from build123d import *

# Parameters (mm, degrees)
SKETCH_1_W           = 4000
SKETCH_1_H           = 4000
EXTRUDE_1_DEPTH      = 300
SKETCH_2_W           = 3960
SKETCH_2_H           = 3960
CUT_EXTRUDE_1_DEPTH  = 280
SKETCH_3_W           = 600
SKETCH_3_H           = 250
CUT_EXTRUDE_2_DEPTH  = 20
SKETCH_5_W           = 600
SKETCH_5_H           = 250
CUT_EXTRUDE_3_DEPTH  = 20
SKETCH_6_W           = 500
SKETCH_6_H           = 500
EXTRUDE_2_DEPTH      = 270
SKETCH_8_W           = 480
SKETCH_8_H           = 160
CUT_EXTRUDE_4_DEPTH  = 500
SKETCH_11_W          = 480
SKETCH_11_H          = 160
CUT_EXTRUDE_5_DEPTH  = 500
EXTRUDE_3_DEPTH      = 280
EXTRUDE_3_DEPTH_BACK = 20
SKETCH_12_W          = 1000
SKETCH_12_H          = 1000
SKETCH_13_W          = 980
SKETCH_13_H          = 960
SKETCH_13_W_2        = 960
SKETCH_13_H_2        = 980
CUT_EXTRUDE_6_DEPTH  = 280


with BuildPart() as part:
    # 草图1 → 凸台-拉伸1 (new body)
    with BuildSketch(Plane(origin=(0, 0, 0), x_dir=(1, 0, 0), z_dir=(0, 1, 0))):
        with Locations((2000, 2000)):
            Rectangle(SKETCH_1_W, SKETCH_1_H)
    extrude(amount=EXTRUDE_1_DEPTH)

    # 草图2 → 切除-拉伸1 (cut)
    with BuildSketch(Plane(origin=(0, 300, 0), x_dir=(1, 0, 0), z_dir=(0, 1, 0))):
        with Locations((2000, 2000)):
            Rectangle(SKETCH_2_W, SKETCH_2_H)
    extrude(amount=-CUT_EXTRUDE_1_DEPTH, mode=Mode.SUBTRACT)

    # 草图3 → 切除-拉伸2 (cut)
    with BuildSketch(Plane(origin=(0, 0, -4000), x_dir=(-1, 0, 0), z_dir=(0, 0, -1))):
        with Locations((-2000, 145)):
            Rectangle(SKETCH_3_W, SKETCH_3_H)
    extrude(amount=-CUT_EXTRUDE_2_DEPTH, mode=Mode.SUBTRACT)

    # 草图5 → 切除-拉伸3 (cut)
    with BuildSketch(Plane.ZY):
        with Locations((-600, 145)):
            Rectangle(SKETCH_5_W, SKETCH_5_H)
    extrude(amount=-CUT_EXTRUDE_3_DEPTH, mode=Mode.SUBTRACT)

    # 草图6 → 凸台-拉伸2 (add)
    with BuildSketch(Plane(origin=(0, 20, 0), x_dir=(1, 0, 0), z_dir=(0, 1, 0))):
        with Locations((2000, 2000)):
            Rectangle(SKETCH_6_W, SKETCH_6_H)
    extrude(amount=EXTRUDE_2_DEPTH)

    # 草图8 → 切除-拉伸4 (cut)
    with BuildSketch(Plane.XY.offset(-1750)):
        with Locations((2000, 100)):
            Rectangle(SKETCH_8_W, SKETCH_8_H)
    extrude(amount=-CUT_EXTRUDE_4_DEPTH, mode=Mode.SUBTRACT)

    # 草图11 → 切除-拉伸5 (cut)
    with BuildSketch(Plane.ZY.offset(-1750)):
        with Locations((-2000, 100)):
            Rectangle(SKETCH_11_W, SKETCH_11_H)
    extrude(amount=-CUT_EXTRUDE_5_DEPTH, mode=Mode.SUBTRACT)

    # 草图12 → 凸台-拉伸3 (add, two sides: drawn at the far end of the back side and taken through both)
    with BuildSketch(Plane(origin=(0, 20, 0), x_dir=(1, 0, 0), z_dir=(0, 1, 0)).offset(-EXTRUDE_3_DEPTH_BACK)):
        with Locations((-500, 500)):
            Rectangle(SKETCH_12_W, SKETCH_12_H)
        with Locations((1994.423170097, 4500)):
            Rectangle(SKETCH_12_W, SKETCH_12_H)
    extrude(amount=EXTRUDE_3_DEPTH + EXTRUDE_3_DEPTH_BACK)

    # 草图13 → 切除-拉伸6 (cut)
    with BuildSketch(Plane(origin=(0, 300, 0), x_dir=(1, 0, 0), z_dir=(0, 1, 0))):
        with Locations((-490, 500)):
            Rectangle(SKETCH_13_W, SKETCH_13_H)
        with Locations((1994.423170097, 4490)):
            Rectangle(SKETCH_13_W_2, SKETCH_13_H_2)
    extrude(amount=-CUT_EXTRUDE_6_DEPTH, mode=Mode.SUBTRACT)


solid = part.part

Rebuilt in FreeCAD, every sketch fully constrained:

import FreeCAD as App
import Part
import Sketcher
from FreeCAD import Vector


def add_polygon(sketch, points):
    """Adds a closed chain of lines whose ends are joined by coincident constraints."""
    first, n = sketch.GeometryCount, len(points)
    for a, b in zip(points, points[1:] + points[:1]):
        sketch.addGeometry(Part.LineSegment(App.Vector(*a, 0), App.Vector(*b, 0)), False)
    for i in range(n):
        sketch.addConstraint(Sketcher.Constraint("Coincident", first + i, 2, first + (i + 1) % n, 1))

doc = App.newDocument("Part")
body = doc.addObject("PartDesign::Body", "Body")

# Sketch on XZ plane
sketch1 = body.newObject("Sketcher::SketchObject", "Sketch")
sketch1.AttachmentSupport = (doc.getObject("XZ_Plane"), [""])
sketch1.MapMode = "FlatFace"
add_polygon(sketch1, [(0, -4000), (0, 0), (4000, 0), (4000, -4000)])  # lines 0-3
sketch1.addConstraint(Sketcher.Constraint("Vertical", 0))
sketch1.addConstraint(Sketcher.Constraint("Horizontal", 1))
sketch1.addConstraint(Sketcher.Constraint("Vertical", 2))
sketch1.addConstraint(Sketcher.Constraint("Horizontal", 3))
sketch1.addConstraint(Sketcher.Constraint("Coincident", 0, 2, -1, 1))
sketch1.addConstraint(Sketcher.Constraint("Equal", 3, 0))
sketch1.addConstraint(Sketcher.Constraint("DistanceX", 1, 1, 1, 2, 4000.0))
pad1 = body.newObject("PartDesign::Pad", "Pad")
pad1.Profile = sketch1
pad1.Length = 300
pad1.Reversed = True

# Sketch on XZ plane
sketch2 = body.newObject("Sketcher::SketchObject", "Sketch001")
sketch2.AttachmentSupport = (doc.getObject("XZ_Plane"), [""])
sketch2.MapMode = "FlatFace"
sketch2.AttachmentOffset = App.Placement(Vector(0, 0, -300), App.Rotation())
add_polygon(sketch2, [(20, -3980), (20, -20), (3980, -20), (3980, -3980)])  # lines 0-3
sketch2.addConstraint(Sketcher.Constraint("Vertical", 0))
sketch2.addConstraint(Sketcher.Constraint("Horizontal", 1))
sketch2.addConstraint(Sketcher.Constraint("Vertical", 2))
sketch2.addConstraint(Sketcher.Constraint("Horizontal", 3))
sketch2.addConstraint(Sketcher.Constraint("Equal", 3, 0))
sketch2.addConstraint(Sketcher.Constraint("DistanceX", 1, 1, 1, 2, 3960.0))
sketch2.addConstraint(Sketcher.Constraint("DistanceX", -1, 1, 0, 2, 20.0))
sketch2.addConstraint(Sketcher.Constraint("DistanceY", 0, 2, -1, 1, 20.0))
pocket1 = body.newObject("PartDesign::Pocket", "Pocket")
pocket1.Profile = sketch2
pocket1.Length = 280
pocket1.Reversed = True

# Sketch on XY plane
sketch3 = body.newObject("Sketcher::SketchObject", "Sketch002")
sketch3.AttachmentSupport = (doc.getObject("XY_Plane"), [""])
sketch3.MapMode = "FlatFace"
sketch3.AttachmentOffset = App.Placement(Vector(0, 0, -4000), App.Rotation())
add_polygon(sketch3, [(2300, 270), (2300, 20), (1700, 20), (1700, 270)])  # lines 0-3
sketch3.addConstraint(Sketcher.Constraint("Vertical", 0))
sketch3.addConstraint(Sketcher.Constraint("Horizontal", 1))
sketch3.addConstraint(Sketcher.Constraint("Vertical", 2))
sketch3.addConstraint(Sketcher.Constraint("Horizontal", 3))
sketch3.addConstraint(Sketcher.Constraint("DistanceX", 1, 2, 1, 1, 600.0))
sketch3.addConstraint(Sketcher.Constraint("DistanceY", 0, 2, 0, 1, 250.0))
sketch3.addConstraint(Sketcher.Constraint("DistanceX", -1, 1, 0, 2, 2300.0))
sketch3.addConstraint(Sketcher.Constraint("DistanceY", -1, 1, 0, 2, 20.0))
pocket2 = body.newObject("PartDesign::Pocket", "Pocket001")
pocket2.Profile = sketch3
pocket2.Length = 20
pocket2.Reversed = True

# Sketch on YZ plane
sketch4 = body.newObject("Sketcher::SketchObject", "Sketch003")
sketch4.AttachmentSupport = (doc.getObject("YZ_Plane"), [""])
sketch4.MapMode = "FlatFace"
add_polygon(sketch4, [(270, -900), (20, -900), (20, -300), (270, -300)])  # lines 0-3
sketch4.addConstraint(Sketcher.Constraint("Horizontal", 0))
sketch4.addConstraint(Sketcher.Constraint("Vertical", 1))
sketch4.addConstraint(Sketcher.Constraint("Horizontal", 2))
sketch4.addConstraint(Sketcher.Constraint("Vertical", 3))
sketch4.addConstraint(Sketcher.Constraint("DistanceX", 0, 2, 0, 1, 250.0))
sketch4.addConstraint(Sketcher.Constraint("DistanceY", 1, 1, 1, 2, 600.0))
sketch4.addConstraint(Sketcher.Constraint("DistanceX", -1, 1, 0, 2, 20.0))
sketch4.addConstraint(Sketcher.Constraint("DistanceY", 0, 2, -1, 1, 900.0))
pocket3 = body.newObject("PartDesign::Pocket", "Pocket002")
pocket3.Profile = sketch4
pocket3.Length = 20
pocket3.Reversed = True

# Sketch on XZ plane
sketch5 = body.newObject("Sketcher::SketchObject", "Sketch004")
sketch5.AttachmentSupport = (doc.getObject("XZ_Plane"), [""])
sketch5.MapMode = "FlatFace"
sketch5.AttachmentOffset = App.Placement(Vector(0, 0, -20), App.Rotation())
add_polygon(sketch5, [(1750, -2250), (1750, -1750), (2250, -1750), (2250, -2250)])  # lines 0-3
sketch5.addConstraint(Sketcher.Constraint("Vertical", 0))
sketch5.addConstraint(Sketcher.Constraint("Horizontal", 1))
sketch5.addConstraint(Sketcher.Constraint("Vertical", 2))
sketch5.addConstraint(Sketcher.Constraint("Horizontal", 3))
sketch5.addConstraint(Sketcher.Constraint("Equal", 3, 0))
sketch5.addConstraint(Sketcher.Constraint("DistanceX", 1, 1, 1, 2, 500.0))
sketch5.addConstraint(Sketcher.Constraint("DistanceX", -1, 1, 0, 2, 1750.0))
sketch5.addConstraint(Sketcher.Constraint("DistanceY", 0, 2, -1, 1, 1750.0))
pad2 = body.newObject("PartDesign::Pad", "Pad001")
pad2.Profile = sketch5
pad2.Length = 270
pad2.Reversed = True

# Sketch on XY plane
sketch6 = body.newObject("Sketcher::SketchObject", "Sketch005")
sketch6.AttachmentSupport = (doc.getObject("XY_Plane"), [""])
sketch6.MapMode = "FlatFace"
sketch6.AttachmentOffset = App.Placement(Vector(0, 0, -1750), App.Rotation())
add_polygon(sketch6, [(1760, 180), (1760, 20), (2240, 20), (2240, 180)])  # lines 0-3
sketch6.addConstraint(Sketcher.Constraint("Vertical", 0))
sketch6.addConstraint(Sketcher.Constraint("Horizontal", 1))
sketch6.addConstraint(Sketcher.Constraint("Vertical", 2))
sketch6.addConstraint(Sketcher.Constraint("Horizontal", 3))
sketch6.addConstraint(Sketcher.Constraint("DistanceX", 1, 1, 1, 2, 480.0))
sketch6.addConstraint(Sketcher.Constraint("DistanceY", 0, 2, 0, 1, 160.0))
sketch6.addConstraint(Sketcher.Constraint("DistanceX", -1, 1, 0, 2, 1760.0))
sketch6.addConstraint(Sketcher.Constraint("DistanceY", -1, 1, 0, 2, 20.0))
pocket4 = body.newObject("PartDesign::Pocket", "Pocket003")
pocket4.Profile = sketch6
pocket4.Length = 500

# Sketch on YZ plane
sketch7 = body.newObject("Sketcher::SketchObject", "Sketch006")
sketch7.AttachmentSupport = (doc.getObject("YZ_Plane"), [""])
sketch7.MapMode = "FlatFace"
sketch7.AttachmentOffset = App.Placement(Vector(0, 0, 1750), App.Rotation())
add_polygon(sketch7, [(180, -2240), (20, -2240), (20, -1760), (180, -1760)])  # lines 0-3
sketch7.addConstraint(Sketcher.Constraint("Horizontal", 0))
sketch7.addConstraint(Sketcher.Constraint("Vertical", 1))
sketch7.addConstraint(Sketcher.Constraint("Horizontal", 2))
sketch7.addConstraint(Sketcher.Constraint("Vertical", 3))
sketch7.addConstraint(Sketcher.Constraint("DistanceX", 0, 2, 0, 1, 160.0))
sketch7.addConstraint(Sketcher.Constraint("DistanceY", 1, 1, 1, 2, 480.0))
sketch7.addConstraint(Sketcher.Constraint("DistanceX", -1, 1, 0, 2, 20.0))
sketch7.addConstraint(Sketcher.Constraint("DistanceY", 0, 2, -1, 1, 2240.0))
pocket5 = body.newObject("PartDesign::Pocket", "Pocket004")
pocket5.Profile = sketch7
pocket5.Length = 500
pocket5.Reversed = True

# Sketch on XZ plane
sketch8 = body.newObject("Sketcher::SketchObject", "Sketch007")
sketch8.AttachmentSupport = (doc.getObject("XZ_Plane"), [""])
sketch8.MapMode = "FlatFace"
sketch8.AttachmentOffset = App.Placement(Vector(0, 0, -20), App.Rotation())
add_polygon(sketch8, [(-1000, -1000), (-1000, 0), (0, 0), (0, -1000)])  # lines 0-3
add_polygon(sketch8, [(1494.42317, -5000), (1494.42317, -4000), (2494.42317, -4000), (2494.42317, -5000)])  # lines 4-7
sketch8.addConstraint(Sketcher.Constraint("Vertical", 0))
sketch8.addConstraint(Sketcher.Constraint("Horizontal", 1))
sketch8.addConstraint(Sketcher.Constraint("Vertical", 2))
sketch8.addConstraint(Sketcher.Constraint("Horizontal", 3))
sketch8.addConstraint(Sketcher.Constraint("Vertical", 4))
sketch8.addConstraint(Sketcher.Constraint("Horizontal", 5))
sketch8.addConstraint(Sketcher.Constraint("Vertical", 6))
sketch8.addConstraint(Sketcher.Constraint("Horizontal", 7))
sketch8.addConstraint(Sketcher.Constraint("Coincident", 1, 2, -1, 1))
sketch8.addConstraint(Sketcher.Constraint("Equal", 3, 5))
sketch8.addConstraint(Sketcher.Constraint("Equal", 7, 0))
sketch8.addConstraint(Sketcher.Constraint("Equal", 2, 4))
sketch8.addConstraint(Sketcher.Constraint("DistanceX", 1, 1, 1, 2, 1000.0))
sketch8.addConstraint(Sketcher.Constraint("DistanceY", 4, 2, -1, 1, 4000.0))
sketch8.addConstraint(Sketcher.Constraint("DistanceX", -1, 1, 4, 2, 1494.42317))
pad3 = body.newObject("PartDesign::Pad", "Pad002")
pad3.Profile = sketch8
pad3.Type = "TwoLengths"
pad3.Length = 280
pad3.Length2 = 20
pad3.Reversed = True

# Sketch on XZ plane
sketch9 = body.newObject("Sketcher::SketchObject", "Sketch008")
sketch9.AttachmentSupport = (doc.getObject("XZ_Plane"), [""])
sketch9.MapMode = "FlatFace"
sketch9.AttachmentOffset = App.Placement(Vector(0, 0, -300), App.Rotation())
add_polygon(sketch9, [(-980, -980), (-980, -20), (0, -20), (0, -980)])  # lines 0-3
add_polygon(sketch9, [(1514.42317, -4980), (1514.42317, -4000), (2474.42317, -4000), (2474.42317, -4980)])  # lines 4-7
sketch9.addConstraint(Sketcher.Constraint("Vertical", 0))
sketch9.addConstraint(Sketcher.Constraint("Horizontal", 1))
sketch9.addConstraint(Sketcher.Constraint("Vertical", 2))
sketch9.addConstraint(Sketcher.Constraint("Horizontal", 3))
sketch9.addConstraint(Sketcher.Constraint("Vertical", 4))
sketch9.addConstraint(Sketcher.Constraint("Horizontal", 5))
sketch9.addConstraint(Sketcher.Constraint("Vertical", 6))
sketch9.addConstraint(Sketcher.Constraint("Horizontal", 7))
sketch9.addConstraint(Sketcher.Constraint("PointOnObject", 1, 2, -2))
sketch9.addConstraint(Sketcher.Constraint("Equal", 7, 0))
sketch9.addConstraint(Sketcher.Constraint("Equal", 3, 4))
sketch9.addConstraint(Sketcher.Constraint("DistanceX", 1, 1, 1, 2, 980.0))
sketch9.addConstraint(Sketcher.Constraint("DistanceX", 5, 1, 5, 2, 960.0))
sketch9.addConstraint(Sketcher.Constraint("DistanceY", 0, 2, -1, 1, 20.0))
sketch9.addConstraint(Sketcher.Constraint("DistanceY", 4, 2, -1, 1, 4000.0))
sketch9.addConstraint(Sketcher.Constraint("DistanceX", -1, 1, 4, 2, 1514.42317))
pocket6 = body.newObject("PartDesign::Pocket", "Pocket005")
pocket6.Profile = sketch9
pocket6.Length = 280
pocket6.Reversed = True

doc.recompute()
